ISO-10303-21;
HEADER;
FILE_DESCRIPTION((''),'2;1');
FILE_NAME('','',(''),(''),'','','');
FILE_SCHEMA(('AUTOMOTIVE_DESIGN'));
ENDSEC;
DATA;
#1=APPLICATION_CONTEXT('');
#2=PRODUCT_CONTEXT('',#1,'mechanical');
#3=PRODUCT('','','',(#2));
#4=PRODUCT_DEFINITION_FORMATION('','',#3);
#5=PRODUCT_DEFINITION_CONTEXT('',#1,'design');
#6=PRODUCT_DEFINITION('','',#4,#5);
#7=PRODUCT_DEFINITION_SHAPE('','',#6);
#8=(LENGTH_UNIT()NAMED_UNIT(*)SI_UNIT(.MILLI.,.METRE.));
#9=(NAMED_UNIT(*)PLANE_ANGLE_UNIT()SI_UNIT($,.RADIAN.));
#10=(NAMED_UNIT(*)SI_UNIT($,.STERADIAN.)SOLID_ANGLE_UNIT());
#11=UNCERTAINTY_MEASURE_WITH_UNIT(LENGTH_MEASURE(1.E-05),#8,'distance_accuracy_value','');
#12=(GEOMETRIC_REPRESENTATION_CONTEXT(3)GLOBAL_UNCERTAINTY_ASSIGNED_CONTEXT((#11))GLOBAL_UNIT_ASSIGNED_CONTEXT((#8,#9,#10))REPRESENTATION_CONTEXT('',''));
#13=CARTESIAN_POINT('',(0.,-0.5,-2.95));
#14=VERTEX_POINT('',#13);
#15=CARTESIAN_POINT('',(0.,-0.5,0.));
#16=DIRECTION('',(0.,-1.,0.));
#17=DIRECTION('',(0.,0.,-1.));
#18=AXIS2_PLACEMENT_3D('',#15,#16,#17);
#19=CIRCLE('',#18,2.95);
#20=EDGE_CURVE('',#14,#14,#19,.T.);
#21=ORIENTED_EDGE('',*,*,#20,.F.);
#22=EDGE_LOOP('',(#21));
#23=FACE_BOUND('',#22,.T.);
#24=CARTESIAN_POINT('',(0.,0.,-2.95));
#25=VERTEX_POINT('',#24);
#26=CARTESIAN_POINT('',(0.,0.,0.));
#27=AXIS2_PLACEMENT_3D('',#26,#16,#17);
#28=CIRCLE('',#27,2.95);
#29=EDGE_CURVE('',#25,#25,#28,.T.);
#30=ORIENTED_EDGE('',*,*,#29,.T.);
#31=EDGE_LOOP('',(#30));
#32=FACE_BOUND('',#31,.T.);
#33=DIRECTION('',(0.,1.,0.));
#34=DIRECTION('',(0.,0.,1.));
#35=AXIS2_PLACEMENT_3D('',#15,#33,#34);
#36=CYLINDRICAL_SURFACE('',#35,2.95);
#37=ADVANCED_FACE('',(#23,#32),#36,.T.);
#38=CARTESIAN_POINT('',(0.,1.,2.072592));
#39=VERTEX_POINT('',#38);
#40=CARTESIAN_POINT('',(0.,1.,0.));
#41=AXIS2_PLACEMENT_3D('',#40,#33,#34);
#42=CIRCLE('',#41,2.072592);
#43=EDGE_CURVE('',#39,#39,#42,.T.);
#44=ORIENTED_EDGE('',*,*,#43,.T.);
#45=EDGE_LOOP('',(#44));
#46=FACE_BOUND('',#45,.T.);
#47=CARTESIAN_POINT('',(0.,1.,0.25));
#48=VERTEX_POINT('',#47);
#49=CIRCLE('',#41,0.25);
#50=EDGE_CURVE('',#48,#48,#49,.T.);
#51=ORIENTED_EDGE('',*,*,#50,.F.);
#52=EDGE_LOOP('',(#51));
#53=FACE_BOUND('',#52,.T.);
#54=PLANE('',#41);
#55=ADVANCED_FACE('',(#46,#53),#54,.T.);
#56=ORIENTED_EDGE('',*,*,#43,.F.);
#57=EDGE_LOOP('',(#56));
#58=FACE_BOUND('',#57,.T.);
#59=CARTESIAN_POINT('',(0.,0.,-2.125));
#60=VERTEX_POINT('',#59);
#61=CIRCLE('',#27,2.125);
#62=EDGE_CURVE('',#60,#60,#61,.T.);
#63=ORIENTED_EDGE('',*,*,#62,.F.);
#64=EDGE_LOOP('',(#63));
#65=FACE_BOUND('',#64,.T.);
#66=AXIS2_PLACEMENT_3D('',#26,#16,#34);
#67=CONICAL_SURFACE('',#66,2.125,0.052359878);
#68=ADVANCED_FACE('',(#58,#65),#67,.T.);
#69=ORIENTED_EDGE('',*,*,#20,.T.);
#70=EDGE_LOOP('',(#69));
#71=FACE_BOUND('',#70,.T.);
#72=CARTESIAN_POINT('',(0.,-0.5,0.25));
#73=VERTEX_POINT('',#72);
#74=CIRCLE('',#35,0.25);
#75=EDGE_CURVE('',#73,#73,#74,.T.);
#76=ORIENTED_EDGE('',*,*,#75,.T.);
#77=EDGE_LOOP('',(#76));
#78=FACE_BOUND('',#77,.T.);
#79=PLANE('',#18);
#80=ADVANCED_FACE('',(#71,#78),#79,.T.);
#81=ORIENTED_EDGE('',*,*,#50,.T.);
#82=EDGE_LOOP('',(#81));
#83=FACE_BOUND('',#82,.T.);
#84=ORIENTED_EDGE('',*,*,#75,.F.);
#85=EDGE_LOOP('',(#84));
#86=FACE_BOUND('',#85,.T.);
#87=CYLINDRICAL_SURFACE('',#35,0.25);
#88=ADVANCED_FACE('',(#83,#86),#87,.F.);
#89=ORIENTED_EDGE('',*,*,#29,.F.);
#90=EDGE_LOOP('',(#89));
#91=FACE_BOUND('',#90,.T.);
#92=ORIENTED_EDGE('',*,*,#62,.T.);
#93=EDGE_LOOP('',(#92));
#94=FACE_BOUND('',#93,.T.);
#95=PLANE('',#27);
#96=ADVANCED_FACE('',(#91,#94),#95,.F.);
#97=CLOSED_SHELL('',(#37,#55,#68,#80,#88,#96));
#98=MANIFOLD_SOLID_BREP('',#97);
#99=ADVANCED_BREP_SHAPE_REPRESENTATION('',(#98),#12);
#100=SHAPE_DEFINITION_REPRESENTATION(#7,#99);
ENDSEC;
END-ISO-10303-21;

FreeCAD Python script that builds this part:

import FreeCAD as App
import Part
import Sketcher
from FreeCAD import Vector

doc = App.newDocument("Part")
body = doc.addObject("PartDesign::Body", "Body")

# Sketch on XZ plane
sketch1 = body.newObject("Sketcher::SketchObject", "Sketch")
sketch1.AttachmentSupport = (doc.getObject("XZ_Plane"), [""])
sketch1.MapMode = "FlatFace"
sketch1.addGeometry(Part.Circle(Vector(0, 0, 0), Vector(0, 0, 1), 2.1), False)
sketch1.addConstraint([
    Sketcher.Constraint("Coincident", 0, 3, -1, 1),
    Sketcher.Constraint("Diameter", 0, 4.25),
])
pad1 = body.newObject("PartDesign::Pad", "Pad")
pad1.Profile = sketch1
pad1.Length = 1
pad1.Reversed = True
pad1.TaperAngle = -3

# Sketch on XZ plane
sketch2 = body.newObject("Sketcher::SketchObject", "Sketch001")
sketch2.AttachmentSupport = (doc.getObject("XZ_Plane"), [""])
sketch2.MapMode = "FlatFace"
sketch2.addGeometry(Part.Circle(Vector(0, 0, 0), Vector(0, 0, 1), 3), False)
sketch2.addConstraint([
    Sketcher.Constraint("Coincident", 0, 3, -1, 1),
    Sketcher.Constraint("Diameter", 0, 5.9),
])
pad2 = body.newObject("PartDesign::Pad", "Pad001")
pad2.Profile = sketch2
pad2.Length = 0.5

# Sketch on XZ plane
sketch3 = body.newObject("Sketcher::SketchObject", "Sketch002")
sketch3.AttachmentSupport = (doc.getObject("XZ_Plane"), [""])
sketch3.MapMode = "FlatFace"
sketch3.AttachmentOffset = App.Placement(Vector(0, 0, -1), App.Rotation())
sketch3.addGeometry(Part.Circle(Vector(0, 0, 0), Vector(0, 0, 1), 0.25), False)
sketch3.addConstraint([
    Sketcher.Constraint("Coincident", 0, 3, -1, 1),
    Sketcher.Constraint("Diameter", 0, 0.5),
])
pocket1 = body.newObject("PartDesign::Pocket", "Pocket")
pocket1.Profile = sketch3
pocket1.Type = "ThroughAll"
pocket1.Reversed = True

doc.recompute()
